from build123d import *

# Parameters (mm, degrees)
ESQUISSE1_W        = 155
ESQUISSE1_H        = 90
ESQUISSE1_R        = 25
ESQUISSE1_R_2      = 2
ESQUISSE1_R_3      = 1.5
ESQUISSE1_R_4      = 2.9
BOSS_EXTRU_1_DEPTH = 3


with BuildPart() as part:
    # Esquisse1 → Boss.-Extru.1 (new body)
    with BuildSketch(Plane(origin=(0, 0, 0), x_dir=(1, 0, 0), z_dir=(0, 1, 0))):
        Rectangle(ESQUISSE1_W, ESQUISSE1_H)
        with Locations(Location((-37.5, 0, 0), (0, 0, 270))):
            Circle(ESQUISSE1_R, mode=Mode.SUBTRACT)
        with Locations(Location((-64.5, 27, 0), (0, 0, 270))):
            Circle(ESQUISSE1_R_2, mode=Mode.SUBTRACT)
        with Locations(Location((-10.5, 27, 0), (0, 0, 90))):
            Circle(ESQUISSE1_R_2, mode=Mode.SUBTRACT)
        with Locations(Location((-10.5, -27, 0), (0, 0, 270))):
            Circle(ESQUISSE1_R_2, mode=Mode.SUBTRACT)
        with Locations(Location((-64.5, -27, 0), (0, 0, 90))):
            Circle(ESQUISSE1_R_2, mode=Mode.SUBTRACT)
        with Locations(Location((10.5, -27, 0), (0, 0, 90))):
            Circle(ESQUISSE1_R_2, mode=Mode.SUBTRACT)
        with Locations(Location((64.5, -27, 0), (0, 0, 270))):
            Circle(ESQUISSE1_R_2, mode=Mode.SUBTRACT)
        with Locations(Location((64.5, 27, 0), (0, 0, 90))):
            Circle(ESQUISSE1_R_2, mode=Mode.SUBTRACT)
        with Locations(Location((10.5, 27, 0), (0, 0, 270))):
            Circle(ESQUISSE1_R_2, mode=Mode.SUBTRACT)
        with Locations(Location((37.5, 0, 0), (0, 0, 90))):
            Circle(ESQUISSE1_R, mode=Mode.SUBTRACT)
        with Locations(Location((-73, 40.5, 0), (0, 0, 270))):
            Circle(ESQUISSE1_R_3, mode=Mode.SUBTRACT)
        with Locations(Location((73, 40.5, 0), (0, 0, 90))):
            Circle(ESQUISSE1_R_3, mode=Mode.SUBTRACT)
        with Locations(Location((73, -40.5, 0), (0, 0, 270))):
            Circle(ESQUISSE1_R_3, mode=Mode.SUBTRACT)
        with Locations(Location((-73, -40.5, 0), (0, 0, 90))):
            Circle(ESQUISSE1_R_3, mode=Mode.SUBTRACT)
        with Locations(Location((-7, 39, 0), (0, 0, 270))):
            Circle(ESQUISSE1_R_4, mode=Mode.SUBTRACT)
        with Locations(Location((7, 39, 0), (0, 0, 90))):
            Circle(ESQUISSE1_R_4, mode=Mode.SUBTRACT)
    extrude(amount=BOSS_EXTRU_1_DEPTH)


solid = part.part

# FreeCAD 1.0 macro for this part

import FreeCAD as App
import Part
import Sketcher
from FreeCAD import Vector


def add_polygon(sketch, points):
    """Adds a closed chain of lines whose ends are joined by coincident constraints."""
    first, n = sketch.GeometryCount, len(points)
    for a, b in zip(points, points[1:] + points[:1]):
        sketch.addGeometry(Part.LineSegment(App.Vector(*a, 0), App.Vector(*b, 0)), False)
    for i in range(n):
        sketch.addConstraint(Sketcher.Constraint("Coincident", first + i, 2, first + (i + 1) % n, 1))

doc = App.newDocument("Part")
params = doc.addObject("Spreadsheet::Sheet", "Params")
for row, (alias, value) in enumerate([
    ("sketch1_diameter", "3 mm"),
    ("sketch1_diameter2", "4 mm"),
    ("sketch1_diameter3", "50 mm"),
    ("sketch1_diameter4", "5.8 mm"),
    ("sketch1_width", "155 mm"),
    ("pad1_length", "3 mm"),
], start=1):
    params.set(f"A{row}", alias)
    params.set(f"B{row}", "=" + value)
    params.setAlias(f"B{row}", alias)

body = doc.addObject("PartDesign::Body", "Body")

# Sketch on XZ plane
sketch1 = doc.addObject("Sketcher::SketchObject", "Sketch")
body.addObject(sketch1)
sketch1.AttachmentSupport = (doc.XZ_Plane, [""])
sketch1.MapMode = "FlatFace"
add_polygon(sketch1, [(-77.5, -45), (-77.5, 45), (77.5, 45), (77.5, -45)])  # lines 0-3
sketch1.addGeometry(Part.Circle(Vector(-73, 40.5, 0), Vector(0, 0, 1), 1.5), False)  # 4
sketch1.addGeometry(Part.Circle(Vector(-64.5, 27, 0), Vector(0, 0, 1), 2), False)  # 5
sketch1.addGeometry(Part.Circle(Vector(-10.5, 27, 0), Vector(0, 0, 1), 2), False)  # 6
sketch1.addGeometry(Part.Circle(Vector(10.5, 27, 0), Vector(0, 0, 1), 2), False)  # 7
sketch1.addGeometry(Part.Circle(Vector(73, 40.5, 0), Vector(0, 0, 1), 1.5), False)  # 8
sketch1.addGeometry(Part.Circle(Vector(64.5, 27, 0), Vector(0, 0, 1), 2), False)  # 9
sketch1.addGeometry(Part.Circle(Vector(-37.5, 0, 0), Vector(0, 0, 1), 25), False)  # 10
sketch1.addGeometry(Part.Circle(Vector(-64.5, -27, 0), Vector(0, 0, 1), 2), False)  # 11
sketch1.addGeometry(Part.Circle(Vector(-73, -40.5, 0), Vector(0, 0, 1), 1.5), False)  # 12
sketch1.addGeometry(Part.Circle(Vector(-10.5, -27, 0), Vector(0, 0, 1), 2), False)  # 13
sketch1.addGeometry(Part.Circle(Vector(-7, -39, 0), Vector(0, 0, 1), 2.9), False)  # 14
sketch1.addGeometry(Part.Circle(Vector(37.5, 0, 0), Vector(0, 0, 1), 25), False)  # 15
sketch1.addGeometry(Part.Circle(Vector(10.5, -27, 0), Vector(0, 0, 1), 2), False)  # 16
sketch1.addGeometry(Part.Circle(Vector(7, -39, 0), Vector(0, 0, 1), 2.9), False)  # 17
sketch1.addGeometry(Part.Circle(Vector(64.5, -27, 0), Vector(0, 0, 1), 2), False)  # 18
sketch1.addGeometry(Part.Circle(Vector(73, -40.5, 0), Vector(0, 0, 1), 1.5), False)  # 19
sketch1.addConstraint([
    Sketcher.Constraint("Vertical", 0),
    Sketcher.Constraint("Horizontal", 1),
    Sketcher.Constraint("Vertical", 2),
    Sketcher.Constraint("Horizontal", 3),
    Sketcher.Constraint("Equal", 5, 6),
    Sketcher.Constraint("Equal", 6, 7),
    Sketcher.Constraint("Equal", 4, 8),
    Sketcher.Constraint("Equal", 7, 9),
    Sketcher.Constraint("Equal", 9, 11),
    Sketcher.Constraint("Equal", 8, 12),
    Sketcher.Constraint("Equal", 11, 13),
    Sketcher.Constraint("Equal", 10, 15),
    Sketcher.Constraint("Equal", 13, 16),
    Sketcher.Constraint("Equal", 14, 17),
    Sketcher.Constraint("Equal", 16, 18),
    Sketcher.Constraint("Equal", 12, 19),
    Sketcher.Constraint("Symmetric", 9, 3, 11, 3, -1, 1),
    Sketcher.Constraint("Symmetric", 8, 3, 12, 3, -1, 1),
    Sketcher.Constraint("Symmetric", 7, 3, 13, 3, -1, 1),
    Sketcher.Constraint("Symmetric", 10, 3, 15, 3, -1, 1),
    Sketcher.Constraint("Symmetric", 6, 3, 16, 3, -1, 1),
    Sketcher.Constraint("Symmetric", 5, 3, 18, 3, -1, 1),
    Sketcher.Constraint("Symmetric", 4, 3, 19, 3, -1, 1),
    Sketcher.Constraint("Symmetric", 0, 2, 2, 2, -1, 1),
    Sketcher.Constraint("Symmetric", 6, 3, 7, 3, -2),
    Sketcher.Constraint("Symmetric", 4, 3, 8, 3, -2),
    Sketcher.Constraint("Symmetric", 5, 3, 9, 3, -2),
    Sketcher.Constraint("Symmetric", 14, 3, 17, 3, -2),
    Sketcher.Constraint("PointOnObject", 10, 3, -1),
    Sketcher.Constraint("Horizontal", 5, 3, 6, 3),
    Sketcher.Constraint("Diameter", 4, 3.0),
    Sketcher.Constraint("Diameter", 5, 4.0),
    Sketcher.Constraint("Diameter", 10, 50.0),
    Sketcher.Constraint("Diameter", 14, 5.8),
    Sketcher.Constraint("DistanceX", 1, 1, 1, 2, 155.0),
    Sketcher.Constraint("DistanceY", 0, 1, 0, 2, 90.0),
    Sketcher.Constraint("DistanceX", 4, 3, -1, 1, 73.0),
    Sketcher.Constraint("DistanceY", -1, 1, 5, 3, 27.0),
    Sketcher.Constraint("DistanceX", 14, 3, -1, 1, 7.0),
    Sketcher.Constraint("DistanceY", 14, 3, -1, 1, 39.0),
    Sketcher.Constraint("DistanceX", 5, 3, 6, 3, 54.0),
    Sketcher.Constraint("DistanceX", 6, 3, 7, 3, 21.0),
    Sketcher.Constraint("DistanceX", 5, 3, 10, 3, 27.0),
    Sketcher.Constraint("DistanceY", 12, 3, 4, 3, 81.0),
])
sketch1.setExpression("Constraints[34]", "Params.sketch1_diameter")
sketch1.setExpression("Constraints[35]", "Params.sketch1_diameter2")
sketch1.setExpression("Constraints[36]", "Params.sketch1_diameter3")
sketch1.setExpression("Constraints[37]", "Params.sketch1_diameter4")
sketch1.setExpression("Constraints[38]", "Params.sketch1_width")
pad1 = doc.addObject("PartDesign::Pad", "Pad")
body.addObject(pad1)
pad1.Profile = sketch1
pad1.setExpression("Length", "Params.pad1_length")
pad1.Reversed = True

doc.recompute()
